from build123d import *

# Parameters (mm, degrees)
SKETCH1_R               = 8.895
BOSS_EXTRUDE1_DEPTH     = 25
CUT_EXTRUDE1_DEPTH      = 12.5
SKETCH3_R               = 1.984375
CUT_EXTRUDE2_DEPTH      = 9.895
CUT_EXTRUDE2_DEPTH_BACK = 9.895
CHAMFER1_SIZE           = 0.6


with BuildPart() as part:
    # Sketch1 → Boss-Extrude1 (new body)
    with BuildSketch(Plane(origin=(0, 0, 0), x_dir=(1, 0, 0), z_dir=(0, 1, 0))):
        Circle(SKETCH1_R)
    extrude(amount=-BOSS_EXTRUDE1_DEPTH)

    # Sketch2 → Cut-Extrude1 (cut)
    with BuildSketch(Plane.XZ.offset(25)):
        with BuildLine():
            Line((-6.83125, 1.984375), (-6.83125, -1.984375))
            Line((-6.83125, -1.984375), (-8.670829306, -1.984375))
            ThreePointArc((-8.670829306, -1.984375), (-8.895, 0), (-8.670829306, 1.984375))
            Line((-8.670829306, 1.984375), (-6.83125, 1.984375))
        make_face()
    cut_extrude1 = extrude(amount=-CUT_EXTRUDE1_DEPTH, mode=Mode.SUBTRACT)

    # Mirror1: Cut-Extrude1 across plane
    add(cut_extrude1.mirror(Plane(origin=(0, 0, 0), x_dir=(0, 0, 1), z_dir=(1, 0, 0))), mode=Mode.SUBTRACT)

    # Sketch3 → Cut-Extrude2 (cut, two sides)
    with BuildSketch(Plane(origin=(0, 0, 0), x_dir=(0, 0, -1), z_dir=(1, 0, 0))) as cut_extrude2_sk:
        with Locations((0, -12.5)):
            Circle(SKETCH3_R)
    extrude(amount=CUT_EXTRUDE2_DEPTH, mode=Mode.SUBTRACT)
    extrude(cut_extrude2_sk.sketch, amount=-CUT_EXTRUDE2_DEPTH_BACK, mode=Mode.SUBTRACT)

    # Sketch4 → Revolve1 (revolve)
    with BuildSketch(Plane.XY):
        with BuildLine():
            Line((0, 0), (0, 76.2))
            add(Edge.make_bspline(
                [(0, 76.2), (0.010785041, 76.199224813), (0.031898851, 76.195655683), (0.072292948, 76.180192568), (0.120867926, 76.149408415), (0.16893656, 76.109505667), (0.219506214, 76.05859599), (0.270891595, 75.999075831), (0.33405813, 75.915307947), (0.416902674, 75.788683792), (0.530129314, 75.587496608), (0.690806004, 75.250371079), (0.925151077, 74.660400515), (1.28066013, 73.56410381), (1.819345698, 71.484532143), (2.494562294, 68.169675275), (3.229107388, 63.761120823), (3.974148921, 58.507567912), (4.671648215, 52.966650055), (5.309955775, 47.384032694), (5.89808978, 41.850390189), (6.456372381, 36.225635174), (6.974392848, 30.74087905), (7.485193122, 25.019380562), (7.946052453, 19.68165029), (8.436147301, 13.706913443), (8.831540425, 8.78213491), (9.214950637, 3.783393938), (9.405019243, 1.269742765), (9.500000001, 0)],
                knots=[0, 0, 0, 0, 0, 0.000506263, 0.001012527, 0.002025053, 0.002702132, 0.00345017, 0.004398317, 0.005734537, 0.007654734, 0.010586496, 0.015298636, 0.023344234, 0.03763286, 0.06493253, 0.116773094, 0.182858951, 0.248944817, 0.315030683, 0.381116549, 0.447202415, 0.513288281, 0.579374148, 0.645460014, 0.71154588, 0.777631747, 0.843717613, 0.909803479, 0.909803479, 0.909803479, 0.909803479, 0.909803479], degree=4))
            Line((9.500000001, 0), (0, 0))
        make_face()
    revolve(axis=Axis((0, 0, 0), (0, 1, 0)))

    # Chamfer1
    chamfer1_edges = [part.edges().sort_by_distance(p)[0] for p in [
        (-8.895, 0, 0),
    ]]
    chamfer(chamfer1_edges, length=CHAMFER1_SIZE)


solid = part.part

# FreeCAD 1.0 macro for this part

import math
import FreeCAD as App
import Part
import Sketcher

V = App.Vector
Q = App.Units.Quantity


def edges_at(feature, points):
    """Names of the edges that pass closest to the given points."""
    edges = feature.Shape.Edges
    near = lambda p: min(range(len(edges)), key=lambda i: edges[i].distToShape(Part.Vertex(*p))[0])
    return sorted({f"Edge{near(p) + 1}" for p in points})

doc = App.newDocument("Part")
body = doc.addObject("PartDesign::Body", "Body")

# Sketch on XZ plane
sketch1 = body.newObject("Sketcher::SketchObject", "Sketch")
sketch1.AttachmentSupport = (doc.getObject("XZ_Plane"), [""])
sketch1.MapMode = "FlatFace"
sketch1.addGeometry(Part.Circle(V(0, 0, 0), V(0, 0, 1), 9), False)
sketch1.addConstraint([
    Sketcher.Constraint("Coincident", 0, 3, -1, 1),
    Sketcher.Constraint("Diameter", 0, Q("17.79 mm")),
])
pad1 = body.newObject("PartDesign::Pad", "Pad")
pad1.Profile = sketch1
pad1.Length = 25

# Sketch on XZ plane
sketch2 = body.newObject("Sketcher::SketchObject", "Sketch001")
sketch2.AttachmentSupport = (doc.getObject("XZ_Plane"), [""])
sketch2.MapMode = "FlatFace"
sketch2.AttachmentOffset = App.Placement(V(0, 0, 25), App.Rotation())
sketch2.addGeometry([
    Part.LineSegment(V(-6.8, -2, 0), V(-6.8, 2, 0)),
    Part.LineSegment(V(-6.8, 2, 0), V(-8.7, 2, 0)),
    Part.ArcOfCircle(Part.Circle(V(0, 0, 0), V(0, 0, 1), 8.9), math.radians(167), math.radians(193)),
    Part.LineSegment(V(-8.7, -2, 0), V(-6.8, -2, 0)),
], False)
sketch2.addConstraint([
    Sketcher.Constraint("Coincident", 0, 2, 1, 1),
    Sketcher.Constraint("Coincident", 1, 2, 2, 1),
    Sketcher.Constraint("Coincident", 2, 2, 3, 1),
    Sketcher.Constraint("Coincident", 3, 2, 0, 1),
    Sketcher.Constraint("Vertical", 0),
    Sketcher.Constraint("Horizontal", 1),
    Sketcher.Constraint("Horizontal", 3),
    Sketcher.Constraint("Coincident", 2, 3, -1, 1),
    Sketcher.Constraint("Vertical", 1, 2, 2, 2),
    Sketcher.Constraint("Radius", 2, Q("8.895 mm")),
    Sketcher.Constraint("DistanceX", 1, 2, 1, 1, Q("1.839579 mm")),
    Sketcher.Constraint("DistanceY", 0, 1, 0, 2, Q("3.96875 mm")),
])
pocket1 = body.newObject("PartDesign::Pocket", "Pocket")
pocket1.Profile = sketch2
pocket1.Length = 12.5
doc.recompute()

mirrored = body.newObject("PartDesign::Mirrored", "Mirrored")
mirrored.Originals = [pocket1]
mirrored.MirrorPlane = (doc.getObject("YZ_Plane"), [""])
body.Tip = mirrored

# Sketch on YZ plane
sketch3 = body.newObject("Sketcher::SketchObject", "Sketch002")
sketch3.AttachmentSupport = (doc.getObject("YZ_Plane"), [""])
sketch3.MapMode = "FlatFace"
sketch3.addGeometry(Part.Circle(V(-12.5, 0, 0), V(0, 0, 1), 2), False)
sketch3.addConstraint([
    Sketcher.Constraint("PointOnObject", 0, 3, -1),
    Sketcher.Constraint("DistanceX", 0, 3, -1, 1, Q("12.5 mm")),
    Sketcher.Constraint("Diameter", 0, Q("3.96875 mm")),
])
pocket2 = body.newObject("PartDesign::Pocket", "Pocket001")
pocket2.Profile = sketch3
pocket2.Type = "ThroughAll"
pocket2.Midplane = True

# Sketch on XY plane
sketch4 = body.newObject("Sketcher::SketchObject", "Sketch003")
sketch4.AttachmentSupport = (doc.getObject("XY_Plane"), [""])
sketch4.MapMode = "FlatFace"
sketch4.addGeometry([
    Part.LineSegment(V(0, 76.2, 0), V(0, 0, 0)),
    Part.LineSegment(V(0, 0, 0), V(9.5, 0, 0)),
    Part.BSplineCurve([V(0, 76.2, 0), V(0.010785, 76.199225, 0), V(0.031899, 76.195656, 0), V(0.072293, 76.180193, 0), V(0.120868, 76.149408, 0), V(0.168937, 76.109506, 0), V(0.219506, 76.058596, 0), V(0.270892, 75.999076, 0), V(0.334058, 75.915308, 0), V(0.416903, 75.788684, 0), V(0.530129, 75.587497, 0), V(0.690806, 75.250371, 0), V(0.925151, 74.660401, 0), V(1.28066, 73.564104, 0), V(1.819346, 71.484532, 0), V(2.494562, 68.169675, 0), V(3.229107, 63.761121, 0), V(3.974149, 58.507568, 0), V(4.671648, 52.96665, 0), V(5.309956, 47.384033, 0), V(5.89809, 41.85039, 0), V(6.456372, 36.225635, 0), V(6.974393, 30.740879, 0), V(7.485193, 25.019381, 0), V(7.946052, 19.68165, 0), V(8.436147, 13.706913, 0), V(8.83154, 8.782135, 0), V(9.214951, 3.783394, 0), V(9.405019, 1.269743, 0), V(9.5, 0, 0)], [5, 1, 1, 1, 1, 1, 1, 1, 1, 1, 1, 1, 1, 1, 1, 1, 1, 1, 1, 1, 1, 1, 1, 1, 1, 1, 5], [0, 0.000506263, 0.001012527, 0.002025053, 0.002702132, 0.00345017, 0.004398317, 0.005734537, 0.007654734, 0.010586496, 0.015298636, 0.023344234, 0.03763286, 0.06493253, 0.116773094, 0.182858951, 0.248944817, 0.315030683, 0.381116549, 0.447202415, 0.513288281, 0.579374148, 0.645460014, 0.71154588, 0.777631747, 0.843717613, 0.909803479], False, 4, [1, 1, 1, 1, 1, 1, 1, 1, 1, 1, 1, 1, 1, 1, 1, 1, 1, 1, 1, 1, 1, 1, 1, 1, 1, 1, 1, 1, 1, 1], False),
], False)
sketch4.addConstraint([
    Sketcher.Constraint("Block", 2),
    Sketcher.Constraint("Coincident", 0, 2, 1, 1),
    Sketcher.Constraint("Coincident", 1, 2, 2, 2),
    Sketcher.Constraint("Coincident", 2, 1, 0, 1),
    Sketcher.Constraint("Vertical", 0),
    Sketcher.Constraint("Horizontal", 1),
])
revolution = body.newObject("PartDesign::Revolution", "Revolution")
revolution.Profile = sketch4
revolution.ReferenceAxis = (sketch4, ["V_Axis"])
revolution.Angle = 360
doc.recompute()

chamfer = body.newObject("PartDesign::Chamfer", "Chamfer")
chamfer.Base = (revolution, edges_at(revolution, [(-8.895, 0, 0)]))
chamfer.Size = 0.6

doc.recompute()
